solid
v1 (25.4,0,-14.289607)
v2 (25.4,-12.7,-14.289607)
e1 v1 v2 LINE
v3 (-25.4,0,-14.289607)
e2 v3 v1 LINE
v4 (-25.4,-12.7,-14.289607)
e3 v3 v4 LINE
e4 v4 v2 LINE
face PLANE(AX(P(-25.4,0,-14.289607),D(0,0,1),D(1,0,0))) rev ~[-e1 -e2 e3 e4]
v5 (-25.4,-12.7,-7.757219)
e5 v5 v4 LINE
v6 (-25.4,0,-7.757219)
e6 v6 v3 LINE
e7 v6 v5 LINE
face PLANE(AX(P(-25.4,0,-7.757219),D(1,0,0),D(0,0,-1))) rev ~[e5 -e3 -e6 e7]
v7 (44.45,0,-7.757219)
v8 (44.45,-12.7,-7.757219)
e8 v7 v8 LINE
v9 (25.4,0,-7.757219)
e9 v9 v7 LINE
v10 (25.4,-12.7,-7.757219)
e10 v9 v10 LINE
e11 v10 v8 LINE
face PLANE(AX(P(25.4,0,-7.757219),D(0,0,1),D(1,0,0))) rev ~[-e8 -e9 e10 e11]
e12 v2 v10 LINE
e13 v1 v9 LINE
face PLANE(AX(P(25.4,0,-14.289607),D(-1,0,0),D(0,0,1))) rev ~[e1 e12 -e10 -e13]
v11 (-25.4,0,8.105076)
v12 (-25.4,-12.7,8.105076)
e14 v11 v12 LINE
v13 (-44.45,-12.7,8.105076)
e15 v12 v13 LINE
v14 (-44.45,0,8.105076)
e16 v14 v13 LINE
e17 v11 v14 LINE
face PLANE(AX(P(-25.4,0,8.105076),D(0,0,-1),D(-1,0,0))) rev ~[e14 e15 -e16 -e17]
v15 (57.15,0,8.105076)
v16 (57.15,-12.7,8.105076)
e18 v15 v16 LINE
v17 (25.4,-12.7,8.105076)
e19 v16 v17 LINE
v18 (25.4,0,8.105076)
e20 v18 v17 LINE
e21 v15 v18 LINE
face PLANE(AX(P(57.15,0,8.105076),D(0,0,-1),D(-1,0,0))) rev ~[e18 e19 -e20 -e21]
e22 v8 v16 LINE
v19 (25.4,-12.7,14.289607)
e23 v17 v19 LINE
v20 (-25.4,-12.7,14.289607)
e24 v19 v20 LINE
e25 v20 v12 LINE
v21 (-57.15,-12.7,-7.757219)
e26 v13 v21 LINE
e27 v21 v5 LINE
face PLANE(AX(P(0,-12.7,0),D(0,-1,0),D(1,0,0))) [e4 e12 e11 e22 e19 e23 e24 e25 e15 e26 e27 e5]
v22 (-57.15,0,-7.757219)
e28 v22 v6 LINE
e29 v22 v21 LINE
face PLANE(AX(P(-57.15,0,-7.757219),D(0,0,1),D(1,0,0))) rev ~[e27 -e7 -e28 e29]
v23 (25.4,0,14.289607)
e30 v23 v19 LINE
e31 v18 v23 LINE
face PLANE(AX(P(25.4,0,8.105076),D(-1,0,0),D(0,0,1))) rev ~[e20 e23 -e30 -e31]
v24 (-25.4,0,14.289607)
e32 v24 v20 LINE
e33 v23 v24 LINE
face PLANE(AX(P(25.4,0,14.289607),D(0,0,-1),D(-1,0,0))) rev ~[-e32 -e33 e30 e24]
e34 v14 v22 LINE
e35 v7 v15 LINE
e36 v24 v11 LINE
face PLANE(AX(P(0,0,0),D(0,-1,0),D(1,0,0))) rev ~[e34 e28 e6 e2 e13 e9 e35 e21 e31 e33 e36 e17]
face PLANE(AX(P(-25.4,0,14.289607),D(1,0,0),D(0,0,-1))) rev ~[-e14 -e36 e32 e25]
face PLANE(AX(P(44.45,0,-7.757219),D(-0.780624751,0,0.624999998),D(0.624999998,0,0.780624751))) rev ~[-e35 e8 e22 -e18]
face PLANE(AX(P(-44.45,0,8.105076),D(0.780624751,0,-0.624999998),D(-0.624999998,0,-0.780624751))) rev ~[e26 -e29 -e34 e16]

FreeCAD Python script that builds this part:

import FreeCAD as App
import Part
import Sketcher
Q = App.Units.Quantity

doc = App.newDocument("Part")
params = doc.addObject("Spreadsheet::Sheet", "Params")
for row, (alias, value) in enumerate([
    ("sketch1_width", "2 in"),
    ("sketch1_length", "0.8 in"),
    ("sketch1_width2", "0.75 in"),
    ("sketch1_width3", "1.25 in"),
    ("pad1_length", "0.5 in"),
], start=1):
    params.set(f"A{row}", alias)
    params.set(f"B{row}", "=" + value)
    params.setAlias(f"B{row}", alias)

body = doc.addObject("PartDesign::Body", "Body")

# Sketch on XZ plane
sketch1 = body.newObject("Sketcher::SketchObject", "Sketch")
sketch1.AttachmentSupport = (doc.getObject("XZ_Plane"), [""])
sketch1.MapMode = "FlatFace"
sketch1.addGeometry(Part.LineSegment(App.Vector(25, 14, 0), App.Vector(-25, 14, 0)), False)
sketch1.addGeometry(Part.LineSegment(App.Vector(-25, 14, 0), App.Vector(-25, 8, 0)), False)
sketch1.addGeometry(Part.LineSegment(App.Vector(-25, 8, 0), App.Vector(-44, 8, 0)), False)
sketch1.addGeometry(Part.LineSegment(App.Vector(-44, 8, 0), App.Vector(-57, -8, 0)), False)
sketch1.addGeometry(Part.LineSegment(App.Vector(-57, -8, 0), App.Vector(-25, -8, 0)), False)
sketch1.addGeometry(Part.LineSegment(App.Vector(-25, -8, 0), App.Vector(-25, -14, 0)), False)
sketch1.addGeometry(Part.LineSegment(App.Vector(-25, -14, 0), App.Vector(25, -14, 0)), False)
sketch1.addGeometry(Part.LineSegment(App.Vector(25, -14, 0), App.Vector(25, -8, 0)), False)
sketch1.addGeometry(Part.LineSegment(App.Vector(25, -8, 0), App.Vector(44, -8, 0)), False)
sketch1.addGeometry(Part.LineSegment(App.Vector(44, -8, 0), App.Vector(57, 8, 0)), False)
sketch1.addGeometry(Part.LineSegment(App.Vector(57, 8, 0), App.Vector(25, 8, 0)), False)
sketch1.addGeometry(Part.LineSegment(App.Vector(25, 8, 0), App.Vector(25, 14, 0)), False)
sketch1.addConstraint(Sketcher.Constraint("Coincident", 0, 2, 1, 1))
sketch1.addConstraint(Sketcher.Constraint("Coincident", 1, 2, 2, 1))
sketch1.addConstraint(Sketcher.Constraint("Coincident", 2, 2, 3, 1))
sketch1.addConstraint(Sketcher.Constraint("Coincident", 3, 2, 4, 1))
sketch1.addConstraint(Sketcher.Constraint("Coincident", 4, 2, 5, 1))
sketch1.addConstraint(Sketcher.Constraint("Coincident", 5, 2, 6, 1))
sketch1.addConstraint(Sketcher.Constraint("Coincident", 6, 2, 7, 1))
sketch1.addConstraint(Sketcher.Constraint("Coincident", 7, 2, 8, 1))
sketch1.addConstraint(Sketcher.Constraint("Coincident", 8, 2, 9, 1))
sketch1.addConstraint(Sketcher.Constraint("Coincident", 9, 2, 10, 1))
sketch1.addConstraint(Sketcher.Constraint("Coincident", 10, 2, 11, 1))
sketch1.addConstraint(Sketcher.Constraint("Coincident", 11, 2, 0, 1))
sketch1.addConstraint(Sketcher.Constraint("Horizontal", 0))
sketch1.addConstraint(Sketcher.Constraint("Vertical", 1))
sketch1.addConstraint(Sketcher.Constraint("Horizontal", 2))
sketch1.addConstraint(Sketcher.Constraint("Horizontal", 4))
sketch1.addConstraint(Sketcher.Constraint("Vertical", 5))
sketch1.addConstraint(Sketcher.Constraint("Horizontal", 6))
sketch1.addConstraint(Sketcher.Constraint("Vertical", 7))
sketch1.addConstraint(Sketcher.Constraint("Horizontal", 8))
sketch1.addConstraint(Sketcher.Constraint("Horizontal", 10))
sketch1.addConstraint(Sketcher.Constraint("Vertical", 11))
sketch1.addConstraint(Sketcher.Constraint("Symmetric", 0, 2, 6, 2, -1, 1))
sketch1.addConstraint(Sketcher.Constraint("Symmetric", 4, 2, 7, 2, -2))
sketch1.addConstraint(Sketcher.Constraint("Symmetric", 1, 2, 10, 2, -2))
sketch1.addConstraint(Sketcher.Constraint("Parallel", 3, 9))
sketch1.addConstraint(Sketcher.Constraint("Equal", 2, 8))
sketch1.addConstraint(Sketcher.Constraint("DistanceX", 0, 2, 0, 1, Q("2 in")))
sketch1.addConstraint(Sketcher.Constraint("Distance", 3, Q("0.8 in")))
sketch1.addConstraint(Sketcher.Constraint("DistanceX", 2, 2, 2, 1, Q("0.75 in")))
sketch1.addConstraint(Sketcher.Constraint("DistanceX", 4, 1, 4, 2, Q("1.25 in")))
sketch1.addConstraint(Sketcher.Constraint("DistanceY", 1, 2, 1, 1, 6.184531))
sketch1.addConstraint(Sketcher.Constraint("DistanceY", 5, 2, 5, 1, 6.532388))
sketch1.setExpression("Constraints[27]", "Params.sketch1_width")
sketch1.setExpression("Constraints[28]", "Params.sketch1_length")
sketch1.setExpression("Constraints[29]", "Params.sketch1_width2")
sketch1.setExpression("Constraints[30]", "Params.sketch1_width3")
pad1 = body.newObject("PartDesign::Pad", "Pad")
pad1.Profile = sketch1
pad1.setExpression("Length", "Params.pad1_length")

doc.recompute()
